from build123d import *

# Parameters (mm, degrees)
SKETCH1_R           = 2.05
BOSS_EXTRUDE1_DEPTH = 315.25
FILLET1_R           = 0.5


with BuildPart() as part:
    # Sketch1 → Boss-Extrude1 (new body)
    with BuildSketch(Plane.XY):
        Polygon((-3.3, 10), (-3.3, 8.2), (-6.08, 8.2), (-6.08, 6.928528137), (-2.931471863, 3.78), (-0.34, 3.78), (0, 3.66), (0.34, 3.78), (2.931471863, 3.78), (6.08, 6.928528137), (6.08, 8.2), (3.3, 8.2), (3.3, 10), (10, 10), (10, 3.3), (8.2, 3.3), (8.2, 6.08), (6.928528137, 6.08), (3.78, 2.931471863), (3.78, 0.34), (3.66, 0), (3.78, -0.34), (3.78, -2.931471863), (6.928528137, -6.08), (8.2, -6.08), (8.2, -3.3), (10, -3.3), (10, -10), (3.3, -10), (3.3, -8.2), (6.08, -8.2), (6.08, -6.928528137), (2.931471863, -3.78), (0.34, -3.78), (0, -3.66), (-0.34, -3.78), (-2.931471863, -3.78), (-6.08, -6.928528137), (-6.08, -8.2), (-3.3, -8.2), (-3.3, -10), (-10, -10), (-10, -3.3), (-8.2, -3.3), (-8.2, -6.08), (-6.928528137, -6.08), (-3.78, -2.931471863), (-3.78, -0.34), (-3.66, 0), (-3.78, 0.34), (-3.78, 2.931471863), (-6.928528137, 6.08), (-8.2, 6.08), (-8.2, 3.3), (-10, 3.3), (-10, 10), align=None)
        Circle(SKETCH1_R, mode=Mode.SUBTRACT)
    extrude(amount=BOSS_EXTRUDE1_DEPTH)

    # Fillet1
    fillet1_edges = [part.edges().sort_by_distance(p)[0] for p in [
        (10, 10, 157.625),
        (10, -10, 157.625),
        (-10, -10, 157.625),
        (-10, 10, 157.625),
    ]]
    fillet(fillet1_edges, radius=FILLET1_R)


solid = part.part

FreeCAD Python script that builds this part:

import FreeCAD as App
import Part
import Sketcher

V = App.Vector


def edges_at(feature, points):
    """Names of the edges that pass closest to the given points."""
    edges = feature.Shape.Edges
    near = lambda p: min(range(len(edges)), key=lambda i: edges[i].distToShape(Part.Vertex(*p))[0])
    return sorted({f"Edge{near(p) + 1}" for p in points})

doc = App.newDocument("Part")
body = doc.addObject("PartDesign::Body", "Body")

sketch1 = doc.addObject("Sketcher::SketchObject", "Sketch")
body.addObject(sketch1)
sketch1.AttachmentSupport = (doc.XY_Plane, [""])
sketch1.MapMode = "FlatFace"
sketch1.addGeometry([
    Part.LineSegment(V(-3.3, 8.2, 0), V(-3.3, 10, 0)),
    Part.LineSegment(V(-3.3, 10, 0), V(-10, 10, 0)),
    Part.LineSegment(V(-10, 10, 0), V(-10, 3.3, 0)),
    Part.LineSegment(V(-10, 3.3, 0), V(-8.2, 3.3, 0)),
    Part.LineSegment(V(-8.2, 3.3, 0), V(-8.2, 6.08, 0)),
    Part.LineSegment(V(-8.2, 6.08, 0), V(-6.93, 6.08, 0)),
    Part.LineSegment(V(-6.93, 6.08, 0), V(-3.78, 2.93, 0)),
    Part.LineSegment(V(-3.78, 2.93, 0), V(-3.78, 0.34, 0)),
    Part.LineSegment(V(-3.78, 0.34, 0), V(-3.66, 0, 0)),
    Part.LineSegment(V(-3.66, 0, 0), V(-3.78, -0.34, 0)),
    Part.LineSegment(V(-3.78, -0.34, 0), V(-3.78, -2.93, 0)),
    Part.LineSegment(V(-3.78, -2.93, 0), V(-6.93, -6.08, 0)),
    Part.LineSegment(V(-6.93, -6.08, 0), V(-8.2, -6.08, 0)),
    Part.LineSegment(V(-8.2, -6.08, 0), V(-8.2, -3.3, 0)),
    Part.LineSegment(V(-8.2, -3.3, 0), V(-10, -3.3, 0)),
    Part.LineSegment(V(-10, -3.3, 0), V(-10, -10, 0)),
    Part.LineSegment(V(-10, -10, 0), V(-3.3, -10, 0)),
    Part.LineSegment(V(-3.3, -10, 0), V(-3.3, -8.2, 0)),
    Part.LineSegment(V(-3.3, -8.2, 0), V(-6.08, -8.2, 0)),
    Part.LineSegment(V(-6.08, -8.2, 0), V(-6.08, -6.93, 0)),
    Part.LineSegment(V(-6.08, -6.93, 0), V(-2.93, -3.78, 0)),
    Part.LineSegment(V(-2.93, -3.78, 0), V(-0.34, -3.78, 0)),
    Part.LineSegment(V(-0.34, -3.78, 0), V(0, -3.66, 0)),
    Part.LineSegment(V(0, -3.66, 0), V(0.34, -3.78, 0)),
    Part.LineSegment(V(0.34, -3.78, 0), V(2.93, -3.78, 0)),
    Part.LineSegment(V(2.93, -3.78, 0), V(6.08, -6.93, 0)),
    Part.LineSegment(V(6.08, -6.93, 0), V(6.08, -8.2, 0)),
    Part.LineSegment(V(6.08, -8.2, 0), V(3.3, -8.2, 0)),
    Part.LineSegment(V(3.3, -8.2, 0), V(3.3, -10, 0)),
    Part.LineSegment(V(3.3, -10, 0), V(10, -10, 0)),
    Part.LineSegment(V(10, -10, 0), V(10, -3.3, 0)),
    Part.LineSegment(V(10, -3.3, 0), V(8.2, -3.3, 0)),
    Part.LineSegment(V(8.2, -3.3, 0), V(8.2, -6.08, 0)),
    Part.LineSegment(V(8.2, -6.08, 0), V(6.93, -6.08, 0)),
    Part.LineSegment(V(6.93, -6.08, 0), V(3.78, -2.93, 0)),
    Part.LineSegment(V(3.78, -2.93, 0), V(3.78, -0.34, 0)),
    Part.LineSegment(V(3.78, -0.34, 0), V(3.66, 0, 0)),
    Part.LineSegment(V(3.66, 0, 0), V(3.78, 0.34, 0)),
    Part.LineSegment(V(3.78, 0.34, 0), V(3.78, 2.93, 0)),
    Part.LineSegment(V(3.78, 2.93, 0), V(6.93, 6.08, 0)),
    Part.LineSegment(V(6.93, 6.08, 0), V(8.2, 6.08, 0)),
    Part.LineSegment(V(8.2, 6.08, 0), V(8.2, 3.3, 0)),
    Part.LineSegment(V(8.2, 3.3, 0), V(10, 3.3, 0)),
    Part.LineSegment(V(10, 3.3, 0), V(10, 10, 0)),
    Part.LineSegment(V(10, 10, 0), V(3.3, 10, 0)),
    Part.LineSegment(V(3.3, 10, 0), V(3.3, 8.2, 0)),
    Part.LineSegment(V(3.3, 8.2, 0), V(6.08, 8.2, 0)),
    Part.LineSegment(V(6.08, 8.2, 0), V(6.08, 6.93, 0)),
    Part.LineSegment(V(6.08, 6.93, 0), V(2.93, 3.78, 0)),
    Part.LineSegment(V(2.93, 3.78, 0), V(0.34, 3.78, 0)),
    Part.LineSegment(V(0.34, 3.78, 0), V(0, 3.66, 0)),
    Part.LineSegment(V(0, 3.66, 0), V(-0.34, 3.78, 0)),
    Part.LineSegment(V(-0.34, 3.78, 0), V(-2.93, 3.78, 0)),
    Part.LineSegment(V(-2.93, 3.78, 0), V(-6.08, 6.93, 0)),
    Part.LineSegment(V(-6.08, 6.93, 0), V(-6.08, 8.2, 0)),
    Part.LineSegment(V(-6.08, 8.2, 0), V(-3.3, 8.2, 0)),
    Part.Circle(V(0, 0, 0), V(0, 0, 1), 2.05),
], False)
sketch1.addConstraint([
    Sketcher.Constraint("Coincident", 0, 2, 1, 1),
    Sketcher.Constraint("Coincident", 1, 2, 2, 1),
    Sketcher.Constraint("Coincident", 2, 2, 3, 1),
    Sketcher.Constraint("Coincident", 3, 2, 4, 1),
    Sketcher.Constraint("Coincident", 4, 2, 5, 1),
    Sketcher.Constraint("Coincident", 5, 2, 6, 1),
    Sketcher.Constraint("Coincident", 6, 2, 7, 1),
    Sketcher.Constraint("Coincident", 7, 2, 8, 1),
    Sketcher.Constraint("Coincident", 8, 2, 9, 1),
    Sketcher.Constraint("Coincident", 9, 2, 10, 1),
    Sketcher.Constraint("Coincident", 10, 2, 11, 1),
    Sketcher.Constraint("Coincident", 11, 2, 12, 1),
    Sketcher.Constraint("Coincident", 12, 2, 13, 1),
    Sketcher.Constraint("Coincident", 13, 2, 14, 1),
    Sketcher.Constraint("Coincident", 14, 2, 15, 1),
    Sketcher.Constraint("Coincident", 15, 2, 16, 1),
    Sketcher.Constraint("Coincident", 16, 2, 17, 1),
    Sketcher.Constraint("Coincident", 17, 2, 18, 1),
    Sketcher.Constraint("Coincident", 18, 2, 19, 1),
    Sketcher.Constraint("Coincident", 19, 2, 20, 1),
    Sketcher.Constraint("Coincident", 20, 2, 21, 1),
    Sketcher.Constraint("Coincident", 21, 2, 22, 1),
    Sketcher.Constraint("Coincident", 22, 2, 23, 1),
    Sketcher.Constraint("Coincident", 23, 2, 24, 1),
    Sketcher.Constraint("Coincident", 24, 2, 25, 1),
    Sketcher.Constraint("Coincident", 25, 2, 26, 1),
    Sketcher.Constraint("Coincident", 26, 2, 27, 1),
    Sketcher.Constraint("Coincident", 27, 2, 28, 1),
    Sketcher.Constraint("Coincident", 28, 2, 29, 1),
    Sketcher.Constraint("Coincident", 29, 2, 30, 1),
    Sketcher.Constraint("Coincident", 30, 2, 31, 1),
    Sketcher.Constraint("Coincident", 31, 2, 32, 1),
    Sketcher.Constraint("Coincident", 32, 2, 33, 1),
    Sketcher.Constraint("Coincident", 33, 2, 34, 1),
    Sketcher.Constraint("Coincident", 34, 2, 35, 1),
    Sketcher.Constraint("Coincident", 35, 2, 36, 1),
    Sketcher.Constraint("Coincident", 36, 2, 37, 1),
    Sketcher.Constraint("Coincident", 37, 2, 38, 1),
    Sketcher.Constraint("Coincident", 38, 2, 39, 1),
    Sketcher.Constraint("Coincident", 39, 2, 40, 1),
    Sketcher.Constraint("Coincident", 40, 2, 41, 1),
    Sketcher.Constraint("Coincident", 41, 2, 42, 1),
    Sketcher.Constraint("Coincident", 42, 2, 43, 1),
    Sketcher.Constraint("Coincident", 43, 2, 44, 1),
    Sketcher.Constraint("Coincident", 44, 2, 45, 1),
    Sketcher.Constraint("Coincident", 45, 2, 46, 1),
    Sketcher.Constraint("Coincident", 46, 2, 47, 1),
    Sketcher.Constraint("Coincident", 47, 2, 48, 1),
    Sketcher.Constraint("Coincident", 48, 2, 49, 1),
    Sketcher.Constraint("Coincident", 49, 2, 50, 1),
    Sketcher.Constraint("Coincident", 50, 2, 51, 1),
    Sketcher.Constraint("Coincident", 51, 2, 52, 1),
    Sketcher.Constraint("Coincident", 52, 2, 53, 1),
    Sketcher.Constraint("Coincident", 53, 2, 54, 1),
    Sketcher.Constraint("Coincident", 54, 2, 55, 1),
    Sketcher.Constraint("Coincident", 55, 2, 0, 1),
    Sketcher.Constraint("Vertical", 0),
    Sketcher.Constraint("Horizontal", 1),
    Sketcher.Constraint("Vertical", 2),
    Sketcher.Constraint("Horizontal", 3),
    Sketcher.Constraint("Vertical", 4),
    Sketcher.Constraint("Horizontal", 5),
    Sketcher.Constraint("Vertical", 7),
    Sketcher.Constraint("Vertical", 10),
    Sketcher.Constraint("Horizontal", 12),
    Sketcher.Constraint("Vertical", 13),
    Sketcher.Constraint("Horizontal", 14),
    Sketcher.Constraint("Vertical", 15),
    Sketcher.Constraint("Horizontal", 16),
    Sketcher.Constraint("Vertical", 17),
    Sketcher.Constraint("Horizontal", 18),
    Sketcher.Constraint("Vertical", 19),
    Sketcher.Constraint("Horizontal", 21),
    Sketcher.Constraint("Horizontal", 24),
    Sketcher.Constraint("Vertical", 26),
    Sketcher.Constraint("Horizontal", 27),
    Sketcher.Constraint("Vertical", 28),
    Sketcher.Constraint("Horizontal", 29),
    Sketcher.Constraint("Vertical", 30),
    Sketcher.Constraint("Horizontal", 31),
    Sketcher.Constraint("Vertical", 32),
    Sketcher.Constraint("Horizontal", 33),
    Sketcher.Constraint("Vertical", 35),
    Sketcher.Constraint("Vertical", 38),
    Sketcher.Constraint("Horizontal", 40),
    Sketcher.Constraint("Vertical", 41),
    Sketcher.Constraint("Horizontal", 42),
    Sketcher.Constraint("Vertical", 43),
    Sketcher.Constraint("Horizontal", 44),
    Sketcher.Constraint("Vertical", 45),
    Sketcher.Constraint("Horizontal", 46),
    Sketcher.Constraint("Vertical", 47),
    Sketcher.Constraint("Horizontal", 49),
    Sketcher.Constraint("Horizontal", 52),
    Sketcher.Constraint("Vertical", 54),
    Sketcher.Constraint("Horizontal", 55),
    Sketcher.Constraint("Coincident", 56, 3, -1, 1),
    Sketcher.Constraint("Symmetric", 0, 2, 28, 2, -1, 1),
    Sketcher.Constraint("Symmetric", 2, 2, 30, 2, -1, 1),
    Sketcher.Constraint("Symmetric", 4, 2, 32, 2, -1, 1),
    Sketcher.Constraint("Symmetric", 6, 2, 34, 2, -1, 1),
    Sketcher.Constraint("Symmetric", 8, 2, 36, 2, -1, 1),
    Sketcher.Constraint("Symmetric", 9, 2, 37, 2, -1, 1),
    Sketcher.Constraint("Symmetric", 11, 2, 39, 2, -1, 1),
    Sketcher.Constraint("Symmetric", 13, 2, 41, 2, -1, 1),
    Sketcher.Constraint("Symmetric", 15, 2, 43, 2, -1, 1),
    Sketcher.Constraint("Symmetric", 17, 2, 45, 2, -1, 1),
    Sketcher.Constraint("Symmetric", 19, 2, 47, 2, -1, 1),
    Sketcher.Constraint("Symmetric", 20, 2, 48, 2, -1, 1),
    Sketcher.Constraint("Symmetric", 22, 2, 50, 2, -1, 1),
    Sketcher.Constraint("Symmetric", 23, 2, 51, 2, -1, 1),
    Sketcher.Constraint("Symmetric", 25, 2, 53, 2, -1, 1),
    Sketcher.Constraint("Symmetric", 21, 2, 23, 2, -2),
    Sketcher.Constraint("Symmetric", 19, 2, 25, 2, -2),
    Sketcher.Constraint("Symmetric", 17, 2, 27, 2, -2),
    Sketcher.Constraint("Symmetric", 15, 2, 29, 2, -2),
    Sketcher.Constraint("Symmetric", 13, 2, 31, 2, -2),
    Sketcher.Constraint("Symmetric", 11, 2, 33, 2, -2),
    Sketcher.Constraint("Symmetric", 10, 2, 34, 2, -2),
    Sketcher.Constraint("PointOnObject", 8, 2, -1),
    Sketcher.Constraint("PointOnObject", 22, 2, -2),
    Sketcher.Constraint("Perpendicular", 6, 11),
    Sketcher.Constraint("Parallel", 11, 20),
    Sketcher.Constraint("Perpendicular", 8, 22),
    Sketcher.Constraint("Perpendicular", 9, 23),
    Sketcher.Constraint("Perpendicular", 20, 25),
    Sketcher.Constraint("Parallel", 25, 34),
    Sketcher.Constraint("Perpendicular", 22, 36),
    Sketcher.Constraint("Perpendicular", 34, 39),
    Sketcher.Constraint("Perpendicular", 36, 50),
    Sketcher.Constraint("Perpendicular", 48, 53),
    Sketcher.Constraint("Horizontal", 46, 2, 54, 2),
    Sketcher.Constraint("Equal", 42, 0),
    Sketcher.Constraint("Equal", 44, 2),
    Sketcher.Constraint("Equal", 55, 4),
    Sketcher.Constraint("Equal", 52, 7),
    Sketcher.Constraint("Equal", 40, 19),
    Sketcher.Constraint("Equal", 11, 20),
    Sketcher.Constraint("Equal", 9, 22),
    Sketcher.Constraint("Diameter", 56, 4.1),
    Sketcher.Constraint("DistanceX", 1, 2, 1, 1, 6.7),
    Sketcher.Constraint("DistanceX", 3, 1, 3, 2, 1.8),
    Sketcher.Constraint("DistanceY", -1, 1, 0, 2, 10.0),
    Sketcher.Constraint("DistanceX", 18, 2, 18, 1, 2.78),
    Sketcher.Constraint("DistanceX", 6, 2, -1, 1, 3.78),
    Sketcher.Constraint("DistanceY", -1, 1, 7, 2, 0.34),
    Sketcher.Constraint("DistanceX", 8, 2, -1, 1, 3.66),
    Sketcher.Constraint("DistanceX", 5, 1, 5, 2, 1.271472),
])
pad1 = doc.addObject("PartDesign::Pad", "Pad")
body.addObject(pad1)
pad1.Profile = sketch1
pad1.Length = 315.25
doc.recompute()

fillet = doc.addObject("PartDesign::Fillet", "Fillet")
body.addObject(fillet)
fillet.Base = (pad1, edges_at(pad1, [
    (10, 10, 157.625),
    (10, -10, 157.625),
    (-10, -10, 157.625),
    (-10, 10, 157.625),
]))
fillet.Radius = 0.5

doc.recompute()
